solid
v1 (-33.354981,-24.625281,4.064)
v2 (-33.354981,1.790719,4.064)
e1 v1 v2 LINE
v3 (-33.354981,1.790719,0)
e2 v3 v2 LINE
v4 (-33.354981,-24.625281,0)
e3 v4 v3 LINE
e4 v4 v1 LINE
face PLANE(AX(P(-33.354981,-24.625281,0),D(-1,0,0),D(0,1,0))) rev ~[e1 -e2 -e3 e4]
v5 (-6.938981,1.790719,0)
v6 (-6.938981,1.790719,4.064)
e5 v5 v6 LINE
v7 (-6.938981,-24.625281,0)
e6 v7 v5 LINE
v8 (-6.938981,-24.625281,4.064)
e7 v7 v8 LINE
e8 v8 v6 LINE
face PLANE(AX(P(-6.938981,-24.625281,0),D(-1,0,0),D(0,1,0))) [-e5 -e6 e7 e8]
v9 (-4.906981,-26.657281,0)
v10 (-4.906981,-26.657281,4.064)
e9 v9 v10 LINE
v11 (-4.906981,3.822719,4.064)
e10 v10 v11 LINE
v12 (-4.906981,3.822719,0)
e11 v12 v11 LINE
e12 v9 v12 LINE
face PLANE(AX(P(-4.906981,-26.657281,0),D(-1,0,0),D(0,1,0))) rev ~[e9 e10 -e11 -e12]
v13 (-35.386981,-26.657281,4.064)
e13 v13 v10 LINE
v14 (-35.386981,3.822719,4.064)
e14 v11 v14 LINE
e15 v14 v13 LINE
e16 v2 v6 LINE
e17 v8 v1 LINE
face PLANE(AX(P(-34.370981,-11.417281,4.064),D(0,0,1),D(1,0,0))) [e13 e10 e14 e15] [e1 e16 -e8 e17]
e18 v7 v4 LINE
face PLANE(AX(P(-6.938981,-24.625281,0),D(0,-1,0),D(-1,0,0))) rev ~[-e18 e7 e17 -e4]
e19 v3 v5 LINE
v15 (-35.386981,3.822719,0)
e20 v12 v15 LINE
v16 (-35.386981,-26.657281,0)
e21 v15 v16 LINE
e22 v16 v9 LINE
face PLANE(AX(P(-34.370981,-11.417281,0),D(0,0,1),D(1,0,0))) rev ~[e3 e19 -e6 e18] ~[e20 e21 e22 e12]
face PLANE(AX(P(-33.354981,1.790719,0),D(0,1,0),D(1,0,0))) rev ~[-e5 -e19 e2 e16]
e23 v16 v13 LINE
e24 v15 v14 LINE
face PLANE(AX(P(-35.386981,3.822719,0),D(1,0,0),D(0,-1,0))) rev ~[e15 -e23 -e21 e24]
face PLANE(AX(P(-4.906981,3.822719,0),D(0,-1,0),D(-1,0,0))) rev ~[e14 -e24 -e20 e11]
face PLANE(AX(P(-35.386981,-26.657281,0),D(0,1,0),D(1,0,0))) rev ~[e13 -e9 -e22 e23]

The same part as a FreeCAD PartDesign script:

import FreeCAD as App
import Part
import Sketcher

V = App.Vector
Q = App.Units.Quantity

doc = App.newDocument("Part")
params = doc.addObject("Spreadsheet::Sheet", "Params")
for row, (alias, value) in enumerate([
    ("sketch1_width", "1.2 in"),
    ("sketch1_width2", "1.04 in"),
    ("pad1_length", "0.16 in"),
], start=1):
    params.set(f"A{row}", alias)
    params.set(f"B{row}", "=" + value)
    params.setAlias(f"B{row}", alias)

body = doc.addObject("PartDesign::Body", "Body")

# Sketch on XY plane
sketch1 = doc.addObject("Sketcher::SketchObject", "Sketch")
body.addObject(sketch1)
sketch1.AttachmentSupport = (doc.XY_Plane, [""])
sketch1.MapMode = "FlatFace"
sketch1.addGeometry(Part.LineSegment(V(-35, -27, 0), V(-5, -27, 0)), False)
sketch1.addGeometry(Part.LineSegment(V(-5, -27, 0), V(-5, 4, 0)), False)
sketch1.addGeometry(Part.LineSegment(V(-5, 4, 0), V(-35, 4, 0)), False)
sketch1.addGeometry(Part.LineSegment(V(-35, 4, 0), V(-35, -27, 0)), False)
sketch1.addGeometry(Part.LineSegment(V(-7, -25, 0), V(-33, -25, 0)), False)
sketch1.addGeometry(Part.LineSegment(V(-33, -25, 0), V(-33, 2, 0)), False)
sketch1.addGeometry(Part.LineSegment(V(-33, 2, 0), V(-7, 2, 0)), False)
sketch1.addGeometry(Part.LineSegment(V(-7, 2, 0), V(-7, -25, 0)), False)
sketch1.addConstraint(Sketcher.Constraint("Coincident", 0, 2, 1, 1))
sketch1.addConstraint(Sketcher.Constraint("Coincident", 1, 2, 2, 1))
sketch1.addConstraint(Sketcher.Constraint("Coincident", 2, 2, 3, 1))
sketch1.addConstraint(Sketcher.Constraint("Coincident", 3, 2, 0, 1))
sketch1.addConstraint(Sketcher.Constraint("Coincident", 4, 2, 5, 1))
sketch1.addConstraint(Sketcher.Constraint("Coincident", 5, 2, 6, 1))
sketch1.addConstraint(Sketcher.Constraint("Coincident", 6, 2, 7, 1))
sketch1.addConstraint(Sketcher.Constraint("Coincident", 7, 2, 4, 1))
sketch1.addConstraint(Sketcher.Constraint("Horizontal", 0))
sketch1.addConstraint(Sketcher.Constraint("Vertical", 1))
sketch1.addConstraint(Sketcher.Constraint("Horizontal", 2))
sketch1.addConstraint(Sketcher.Constraint("Vertical", 3))
sketch1.addConstraint(Sketcher.Constraint("Horizontal", 4))
sketch1.addConstraint(Sketcher.Constraint("Vertical", 5))
sketch1.addConstraint(Sketcher.Constraint("Horizontal", 6))
sketch1.addConstraint(Sketcher.Constraint("Vertical", 7))
sketch1.addConstraint(Sketcher.Constraint("Equal", 2, 1))
sketch1.addConstraint(Sketcher.Constraint("Equal", 6, 5))
sketch1.addConstraint(Sketcher.Constraint("DistanceX", 0, 1, 0, 2, Q("1.2 in")))
sketch1.addConstraint(Sketcher.Constraint("DistanceX", 4, 2, 4, 1, Q("1.04 in")))
sketch1.addConstraint(Sketcher.Constraint("DistanceX", 3, 2, 4, 2, Q("0.08 in")))
sketch1.addConstraint(Sketcher.Constraint("DistanceY", 3, 2, 4, 2, Q("0.08 in")))
sketch1.addConstraint(Sketcher.Constraint("DistanceX", 0, 2, -1, 1, 4.906981))
sketch1.addConstraint(Sketcher.Constraint("DistanceY", 0, 2, -1, 1, 26.657281))
sketch1.setExpression("Constraints[18]", "Params.sketch1_width")
sketch1.setExpression("Constraints[19]", "Params.sketch1_width2")
pad1 = doc.addObject("PartDesign::Pad", "Pad")
body.addObject(pad1)
pad1.Profile = sketch1
pad1.setExpression("Length", "Params.pad1_length")

doc.recompute()
